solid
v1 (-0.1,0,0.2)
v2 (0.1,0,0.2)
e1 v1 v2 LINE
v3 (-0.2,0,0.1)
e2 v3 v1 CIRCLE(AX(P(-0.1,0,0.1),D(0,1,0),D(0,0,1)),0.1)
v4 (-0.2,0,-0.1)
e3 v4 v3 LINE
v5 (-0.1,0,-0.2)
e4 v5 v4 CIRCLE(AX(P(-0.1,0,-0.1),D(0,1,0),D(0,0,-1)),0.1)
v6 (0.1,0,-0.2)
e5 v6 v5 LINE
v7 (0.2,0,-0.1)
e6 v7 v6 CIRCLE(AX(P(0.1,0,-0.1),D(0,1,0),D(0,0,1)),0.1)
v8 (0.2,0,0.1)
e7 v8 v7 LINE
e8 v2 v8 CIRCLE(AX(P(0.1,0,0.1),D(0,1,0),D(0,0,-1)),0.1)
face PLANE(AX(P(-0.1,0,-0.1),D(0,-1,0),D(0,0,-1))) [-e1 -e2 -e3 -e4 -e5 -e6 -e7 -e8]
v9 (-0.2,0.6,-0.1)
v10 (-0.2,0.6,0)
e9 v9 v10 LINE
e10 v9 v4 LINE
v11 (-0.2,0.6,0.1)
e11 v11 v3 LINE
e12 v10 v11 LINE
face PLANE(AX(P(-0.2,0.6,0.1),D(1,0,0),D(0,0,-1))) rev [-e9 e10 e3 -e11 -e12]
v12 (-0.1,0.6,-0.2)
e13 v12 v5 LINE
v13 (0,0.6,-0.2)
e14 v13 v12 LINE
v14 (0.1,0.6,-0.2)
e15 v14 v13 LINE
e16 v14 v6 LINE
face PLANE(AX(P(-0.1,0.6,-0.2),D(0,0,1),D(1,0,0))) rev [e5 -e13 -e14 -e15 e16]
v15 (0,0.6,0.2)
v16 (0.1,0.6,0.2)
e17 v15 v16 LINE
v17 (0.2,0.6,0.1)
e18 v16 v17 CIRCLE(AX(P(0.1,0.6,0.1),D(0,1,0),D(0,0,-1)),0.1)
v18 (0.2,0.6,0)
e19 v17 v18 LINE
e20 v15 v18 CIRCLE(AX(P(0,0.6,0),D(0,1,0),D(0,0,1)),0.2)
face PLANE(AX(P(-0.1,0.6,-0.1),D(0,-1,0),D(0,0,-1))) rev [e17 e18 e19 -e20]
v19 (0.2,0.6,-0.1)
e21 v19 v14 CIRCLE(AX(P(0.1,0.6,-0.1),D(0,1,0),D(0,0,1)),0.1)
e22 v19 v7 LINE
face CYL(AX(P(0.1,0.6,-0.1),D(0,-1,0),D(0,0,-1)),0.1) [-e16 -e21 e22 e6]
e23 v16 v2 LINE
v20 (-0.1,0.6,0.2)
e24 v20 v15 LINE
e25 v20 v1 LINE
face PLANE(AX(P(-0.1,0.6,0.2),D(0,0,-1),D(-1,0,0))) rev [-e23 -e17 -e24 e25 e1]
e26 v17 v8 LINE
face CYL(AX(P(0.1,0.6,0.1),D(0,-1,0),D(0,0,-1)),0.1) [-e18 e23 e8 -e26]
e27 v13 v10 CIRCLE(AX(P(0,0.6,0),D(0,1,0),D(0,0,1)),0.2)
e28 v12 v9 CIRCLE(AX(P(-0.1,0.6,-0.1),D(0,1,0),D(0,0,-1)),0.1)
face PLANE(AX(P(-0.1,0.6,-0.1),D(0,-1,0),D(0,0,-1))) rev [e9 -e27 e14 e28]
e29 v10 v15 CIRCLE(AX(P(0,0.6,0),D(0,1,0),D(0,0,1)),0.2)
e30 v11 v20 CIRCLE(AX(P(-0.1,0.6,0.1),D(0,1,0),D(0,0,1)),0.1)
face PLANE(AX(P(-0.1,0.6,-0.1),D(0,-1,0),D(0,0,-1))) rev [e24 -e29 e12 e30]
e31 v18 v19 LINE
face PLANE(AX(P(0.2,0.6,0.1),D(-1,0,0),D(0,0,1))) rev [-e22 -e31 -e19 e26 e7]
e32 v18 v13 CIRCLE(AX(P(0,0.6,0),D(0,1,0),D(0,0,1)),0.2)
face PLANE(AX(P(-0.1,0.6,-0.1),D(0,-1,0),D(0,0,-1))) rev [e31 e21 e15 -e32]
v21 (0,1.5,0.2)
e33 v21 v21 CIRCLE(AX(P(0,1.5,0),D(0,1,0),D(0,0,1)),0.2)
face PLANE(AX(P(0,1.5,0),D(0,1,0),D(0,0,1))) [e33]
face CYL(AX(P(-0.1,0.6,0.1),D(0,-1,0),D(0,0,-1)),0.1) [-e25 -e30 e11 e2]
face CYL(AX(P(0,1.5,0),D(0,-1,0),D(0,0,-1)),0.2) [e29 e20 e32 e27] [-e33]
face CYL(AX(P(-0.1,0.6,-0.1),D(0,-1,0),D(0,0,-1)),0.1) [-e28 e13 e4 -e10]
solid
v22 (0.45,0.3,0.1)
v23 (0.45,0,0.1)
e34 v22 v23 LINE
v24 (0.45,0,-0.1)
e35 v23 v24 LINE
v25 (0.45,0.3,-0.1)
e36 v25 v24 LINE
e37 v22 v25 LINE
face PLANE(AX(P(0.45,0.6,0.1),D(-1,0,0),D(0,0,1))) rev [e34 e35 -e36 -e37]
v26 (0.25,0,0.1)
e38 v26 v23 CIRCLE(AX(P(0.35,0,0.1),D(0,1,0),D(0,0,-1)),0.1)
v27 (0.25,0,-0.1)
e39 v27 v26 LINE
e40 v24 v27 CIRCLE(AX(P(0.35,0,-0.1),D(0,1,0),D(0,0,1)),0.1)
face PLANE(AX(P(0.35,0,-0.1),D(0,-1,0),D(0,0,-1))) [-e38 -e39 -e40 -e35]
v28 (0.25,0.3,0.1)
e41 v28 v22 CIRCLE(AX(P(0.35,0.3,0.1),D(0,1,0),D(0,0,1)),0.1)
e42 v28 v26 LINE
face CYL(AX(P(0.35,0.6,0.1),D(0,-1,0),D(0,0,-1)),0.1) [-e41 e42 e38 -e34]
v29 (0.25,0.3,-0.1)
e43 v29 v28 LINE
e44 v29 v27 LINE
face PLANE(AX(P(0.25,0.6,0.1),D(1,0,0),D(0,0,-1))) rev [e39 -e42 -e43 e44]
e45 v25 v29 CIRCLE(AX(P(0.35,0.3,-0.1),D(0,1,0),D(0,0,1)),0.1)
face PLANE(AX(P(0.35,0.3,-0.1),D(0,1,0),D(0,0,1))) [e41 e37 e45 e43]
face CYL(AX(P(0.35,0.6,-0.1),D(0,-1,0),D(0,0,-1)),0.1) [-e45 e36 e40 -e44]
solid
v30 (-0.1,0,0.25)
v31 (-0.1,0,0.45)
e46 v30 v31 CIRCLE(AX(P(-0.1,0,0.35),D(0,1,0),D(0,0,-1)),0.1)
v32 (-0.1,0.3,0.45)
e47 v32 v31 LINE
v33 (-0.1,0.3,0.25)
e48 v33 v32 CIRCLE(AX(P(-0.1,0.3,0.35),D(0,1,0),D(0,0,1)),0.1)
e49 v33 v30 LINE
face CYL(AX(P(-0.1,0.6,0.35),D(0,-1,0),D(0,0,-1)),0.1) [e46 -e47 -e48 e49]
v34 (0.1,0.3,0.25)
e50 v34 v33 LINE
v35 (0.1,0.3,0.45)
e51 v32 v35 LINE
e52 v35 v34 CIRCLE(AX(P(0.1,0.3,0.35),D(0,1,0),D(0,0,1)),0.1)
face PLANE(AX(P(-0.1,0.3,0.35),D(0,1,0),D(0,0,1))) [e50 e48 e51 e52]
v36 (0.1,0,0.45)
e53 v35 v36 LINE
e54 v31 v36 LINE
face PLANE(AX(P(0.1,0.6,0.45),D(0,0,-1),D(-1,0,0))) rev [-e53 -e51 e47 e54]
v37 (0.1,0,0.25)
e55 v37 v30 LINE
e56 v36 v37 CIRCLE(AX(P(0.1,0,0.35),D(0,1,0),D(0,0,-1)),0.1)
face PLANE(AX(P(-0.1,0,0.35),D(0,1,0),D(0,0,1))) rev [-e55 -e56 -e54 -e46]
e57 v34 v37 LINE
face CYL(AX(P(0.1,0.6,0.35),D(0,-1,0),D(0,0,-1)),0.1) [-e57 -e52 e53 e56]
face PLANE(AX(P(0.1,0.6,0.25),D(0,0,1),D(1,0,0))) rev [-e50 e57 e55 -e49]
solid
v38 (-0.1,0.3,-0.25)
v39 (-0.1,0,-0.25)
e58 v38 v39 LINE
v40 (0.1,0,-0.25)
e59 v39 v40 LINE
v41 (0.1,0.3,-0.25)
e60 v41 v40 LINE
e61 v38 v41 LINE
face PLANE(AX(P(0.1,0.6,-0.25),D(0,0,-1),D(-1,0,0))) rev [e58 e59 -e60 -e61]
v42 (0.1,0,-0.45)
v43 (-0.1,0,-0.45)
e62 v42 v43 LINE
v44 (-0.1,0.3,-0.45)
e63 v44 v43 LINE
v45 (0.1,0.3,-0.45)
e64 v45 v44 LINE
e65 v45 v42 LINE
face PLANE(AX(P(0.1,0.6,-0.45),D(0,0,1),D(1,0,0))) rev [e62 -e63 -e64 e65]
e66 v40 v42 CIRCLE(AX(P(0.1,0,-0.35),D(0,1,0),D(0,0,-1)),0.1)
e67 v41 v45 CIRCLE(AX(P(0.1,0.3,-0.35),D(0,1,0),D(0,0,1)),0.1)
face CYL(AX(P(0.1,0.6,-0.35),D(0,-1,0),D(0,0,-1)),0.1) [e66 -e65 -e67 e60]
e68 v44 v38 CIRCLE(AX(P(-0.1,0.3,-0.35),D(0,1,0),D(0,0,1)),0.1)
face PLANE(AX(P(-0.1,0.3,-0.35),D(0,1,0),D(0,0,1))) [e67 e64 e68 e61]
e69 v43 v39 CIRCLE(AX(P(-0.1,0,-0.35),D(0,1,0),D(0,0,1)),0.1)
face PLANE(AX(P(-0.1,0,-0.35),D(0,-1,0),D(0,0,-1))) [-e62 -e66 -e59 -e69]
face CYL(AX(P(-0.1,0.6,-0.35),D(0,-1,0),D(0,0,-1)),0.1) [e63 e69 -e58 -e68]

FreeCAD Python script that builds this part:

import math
import FreeCAD as App
import Part
import Sketcher

doc = App.newDocument("Part")
body = doc.addObject("PartDesign::Body", "Body")

# Sketch on XZ plane
sketch1 = body.newObject("Sketcher::SketchObject", "Sketch")
sketch1.AttachmentSupport = (doc.getObject("XZ_Plane"), [""])
sketch1.MapMode = "FlatFace"
sketch1.addGeometry([
    Part.LineSegment(App.Vector(-0.1, 0.2, 0), App.Vector(0.1, 0.2, 0)),  # 0
    Part.ArcOfCircle(Part.Circle(App.Vector(0.1, 0.1, 0), App.Vector(0, 0, 1), 0.1), math.radians(0), math.radians(90)),  # 1
    Part.LineSegment(App.Vector(0.2, 0.1, 0), App.Vector(0.2, -0.1, 0)),  # 2
    Part.ArcOfCircle(Part.Circle(App.Vector(0.1, -0.1, 0), App.Vector(0, 0, 1), 0.1), math.radians(-90), math.radians(0)),  # 3
    Part.LineSegment(App.Vector(0.1, -0.2, 0), App.Vector(-0.1, -0.2, 0)),  # 4
    Part.ArcOfCircle(Part.Circle(App.Vector(-0.1, -0.1, 0), App.Vector(0, 0, 1), 0.1), math.radians(180), math.radians(270)),  # 5
    Part.LineSegment(App.Vector(-0.2, -0.1, 0), App.Vector(-0.2, 0.1, 0)),  # 6
    Part.ArcOfCircle(Part.Circle(App.Vector(-0.1, 0.1, 0), App.Vector(0, 0, 1), 0.1), math.radians(90), math.radians(180)),  # 7
], False)
sketch1.addConstraint([
    Sketcher.Constraint("Tangent", 0, 2, 1, 2),
    Sketcher.Constraint("Tangent", 1, 1, 2, 1),
    Sketcher.Constraint("Tangent", 2, 2, 3, 2),
    Sketcher.Constraint("Tangent", 3, 1, 4, 1),
    Sketcher.Constraint("Tangent", 4, 2, 5, 2),
    Sketcher.Constraint("Tangent", 5, 1, 6, 1),
    Sketcher.Constraint("Tangent", 6, 2, 7, 2),
    Sketcher.Constraint("Tangent", 7, 1, 0, 1),
    Sketcher.Constraint("Horizontal", 0),
    Sketcher.Constraint("Vertical", 2),
    Sketcher.Constraint("Horizontal", 4),
    Sketcher.Constraint("Vertical", 6),
    Sketcher.Constraint("Equal", 1, 3),
    Sketcher.Constraint("Equal", 3, 5),
    Sketcher.Constraint("Equal", 5, 7),
    Sketcher.Constraint("Symmetric", 1, 3, 5, 3, -1, 1),
    Sketcher.Constraint("Equal", 4, 2),
    Sketcher.Constraint("Radius", 1, 0.1),
    Sketcher.Constraint("DistanceX", 0, 1, 0, 2, 0.2),
])
pad1 = body.newObject("PartDesign::Pad", "Pad")
pad1.Profile = sketch1
pad1.Length = 0.6
pad1.Reversed = True

# Sketch on XZ plane
sketch2 = body.newObject("Sketcher::SketchObject", "Sketch001")
sketch2.AttachmentSupport = (doc.getObject("XZ_Plane"), [""])
sketch2.MapMode = "FlatFace"
sketch2.AttachmentOffset = App.Placement(App.Vector(0, 0, -0.6), App.Rotation())
sketch2.addGeometry(Part.Circle(App.Vector(0, 0, 0), App.Vector(0, 0, 1), 0.2), False)
sketch2.addConstraint([
    Sketcher.Constraint("Coincident", 0, 3, -1, 1),
    Sketcher.Constraint("Diameter", 0, 0.4),
])
pad2 = body.newObject("PartDesign::Pad", "Pad001")
pad2.Profile = sketch2
pad2.Length = 0.9
pad2.Reversed = True
body2 = doc.addObject("PartDesign::Body", "Body001")

# Sketch on XZ plane
sketch3 = body2.newObject("Sketcher::SketchObject", "Sketch002")
sketch3.AttachmentSupport = (doc.getObject("XZ_Plane001"), [""])
sketch3.MapMode = "FlatFace"
sketch3.addGeometry([
    Part.LineSegment(App.Vector(0.45, 0.1, 0), App.Vector(0.45, -0.1, 0)),  # 0
    Part.ArcOfCircle(Part.Circle(App.Vector(0.35, -0.1, 0), App.Vector(0, 0, 1), 0.1), math.radians(-90), math.radians(0)),  # 1
    Part.ArcOfCircle(Part.Circle(App.Vector(0.35, -0.1, 0), App.Vector(0, 0, 1), 0.1), math.radians(180), math.radians(270)),  # 2
    Part.LineSegment(App.Vector(0.25, -0.1, 0), App.Vector(0.25, 0.1, 0)),  # 3
    Part.ArcOfCircle(Part.Circle(App.Vector(0.35, 0.1, 0), App.Vector(0, 0, 1), 0.1), math.radians(90), math.radians(180)),  # 4
    Part.ArcOfCircle(Part.Circle(App.Vector(0.35, 0.1, 0), App.Vector(0, 0, 1), 0.1), math.radians(0), math.radians(90)),  # 5
], False)
sketch3.addConstraint([
    Sketcher.Constraint("Tangent", 0, 2, 1, 2),
    Sketcher.Constraint("Tangent", 1, 1, 2, 2),
    Sketcher.Constraint("Tangent", 2, 1, 3, 1),
    Sketcher.Constraint("Tangent", 3, 2, 4, 2),
    Sketcher.Constraint("Tangent", 4, 1, 5, 2),
    Sketcher.Constraint("Tangent", 5, 1, 0, 1),
    Sketcher.Constraint("Vertical", 0),
    Sketcher.Constraint("Vertical", 3),
    Sketcher.Constraint("Equal", 1, 2),
    Sketcher.Constraint("Equal", 2, 4),
    Sketcher.Constraint("Symmetric", 1, 1, 4, 1, -1),
    Sketcher.Constraint("Vertical", 5, 3, 1, 1),
    Sketcher.Constraint("Radius", 1, 0.1),
    Sketcher.Constraint("DistanceY", 0, 2, 0, 1, 0.2),
    Sketcher.Constraint("DistanceX", -1, 1, 1, 3, 0.35),
])
pad3 = body2.newObject("PartDesign::Pad", "Pad002")
pad3.Profile = sketch3
pad3.Length = 0.6
pad3.Reversed = True
body3 = doc.addObject("PartDesign::Body", "Body002")

# Sketch on XZ plane
sketch4 = body3.newObject("Sketcher::SketchObject", "Sketch003")
sketch4.AttachmentSupport = (doc.getObject("XZ_Plane002"), [""])
sketch4.MapMode = "FlatFace"
sketch4.addGeometry([
    Part.LineSegment(App.Vector(-0.1, -0.25, 0), App.Vector(0.1, -0.25, 0)),  # 0
    Part.ArcOfCircle(Part.Circle(App.Vector(0.1, -0.35, 0), App.Vector(0, 0, 1), 0.1), math.radians(0), math.radians(90)),  # 1
    Part.ArcOfCircle(Part.Circle(App.Vector(0.1, -0.35, 0), App.Vector(0, 0, 1), 0.1), math.radians(-90), math.radians(0)),  # 2
    Part.LineSegment(App.Vector(0.1, -0.45, 0), App.Vector(-0.1, -0.45, 0)),  # 3
    Part.ArcOfCircle(Part.Circle(App.Vector(-0.1, -0.35, 0), App.Vector(0, 0, 1), 0.1), math.radians(180), math.radians(270)),  # 4
    Part.ArcOfCircle(Part.Circle(App.Vector(-0.1, -0.35, 0), App.Vector(0, 0, 1), 0.1), math.radians(90), math.radians(180)),  # 5
], False)
sketch4.addConstraint([
    Sketcher.Constraint("Tangent", 0, 2, 1, 2),
    Sketcher.Constraint("Tangent", 1, 1, 2, 2),
    Sketcher.Constraint("Tangent", 2, 1, 3, 1),
    Sketcher.Constraint("Tangent", 3, 2, 4, 2),
    Sketcher.Constraint("Tangent", 4, 1, 5, 2),
    Sketcher.Constraint("Tangent", 5, 1, 0, 1),
    Sketcher.Constraint("Horizontal", 0),
    Sketcher.Constraint("Horizontal", 3),
    Sketcher.Constraint("Equal", 1, 2),
    Sketcher.Constraint("Equal", 2, 4),
    Sketcher.Constraint("Symmetric", 1, 1, 4, 1, -2),
    Sketcher.Constraint("Horizontal", 5, 3, 1, 1),
    Sketcher.Constraint("Radius", 1, 0.1),
    Sketcher.Constraint("DistanceX", 0, 1, 0, 2, 0.2),
    Sketcher.Constraint("DistanceY", 1, 3, -1, 1, 0.35),
])
pad4 = body3.newObject("PartDesign::Pad", "Pad003")
pad4.Profile = sketch4
pad4.Length = 0.6
pad4.Reversed = True
body4 = doc.addObject("PartDesign::Body", "Body003")

# Sketch on XZ plane
sketch5 = body4.newObject("Sketcher::SketchObject", "Sketch004")
sketch5.AttachmentSupport = (doc.getObject("XZ_Plane003"), [""])
sketch5.MapMode = "FlatFace"
sketch5.addGeometry([
    Part.LineSegment(App.Vector(-0.1, 0.45, 0), App.Vector(0.1, 0.45, 0)),  # 0
    Part.ArcOfCircle(Part.Circle(App.Vector(0.1, 0.35, 0), App.Vector(0, 0, 1), 0.1), math.radians(0), math.radians(90)),  # 1
    Part.ArcOfCircle(Part.Circle(App.Vector(0.1, 0.35, 0), App.Vector(0, 0, 1), 0.1), math.radians(-90), math.radians(0)),  # 2
    Part.LineSegment(App.Vector(0.1, 0.25, 0), App.Vector(-0.1, 0.25, 0)),  # 3
    Part.ArcOfCircle(Part.Circle(App.Vector(-0.1, 0.35, 0), App.Vector(0, 0, 1), 0.1), math.radians(180), math.radians(270)),  # 4
    Part.ArcOfCircle(Part.Circle(App.Vector(-0.1, 0.35, 0), App.Vector(0, 0, 1), 0.1), math.radians(90), math.radians(180)),  # 5
], False)
sketch5.addConstraint([
    Sketcher.Constraint("Tangent", 0, 2, 1, 2),
    Sketcher.Constraint("Tangent", 1, 1, 2, 2),
    Sketcher.Constraint("Tangent", 2, 1, 3, 1),
    Sketcher.Constraint("Tangent", 3, 2, 4, 2),
    Sketcher.Constraint("Tangent", 4, 1, 5, 2),
    Sketcher.Constraint("Tangent", 5, 1, 0, 1),
    Sketcher.Constraint("Horizontal", 0),
    Sketcher.Constraint("Horizontal", 3),
    Sketcher.Constraint("Equal", 1, 2),
    Sketcher.Constraint("Equal", 2, 4),
    Sketcher.Constraint("Symmetric", 1, 1, 4, 1, -2),
    Sketcher.Constraint("Horizontal", 5, 3, 1, 1),
    Sketcher.Constraint("Radius", 1, 0.1),
    Sketcher.Constraint("DistanceX", 0, 1, 0, 2, 0.2),
    Sketcher.Constraint("DistanceY", -1, 1, 1, 3, 0.35),
])
pad5 = body4.newObject("PartDesign::Pad", "Pad004")
pad5.Profile = sketch5
pad5.Length = 0.6
pad5.Reversed = True
body5 = doc.addObject("PartDesign::Body", "Body004")
body5.AllowCompound = True

# Sketch on XZ plane
sketch6 = body5.newObject("Sketcher::SketchObject", "Sketch005")
sketch6.AttachmentSupport = (doc.getObject("XZ_Plane004"), [""])
sketch6.MapMode = "FlatFace"
sketch6.AttachmentOffset = App.Placement(App.Vector(0, 0, -0.6), App.Rotation())
sketch6.addGeometry([
    Part.LineSegment(App.Vector(-0.1, 0.45, 0), App.Vector(0.1, 0.45, 0)),  # 0
    Part.ArcOfCircle(Part.Circle(App.Vector(0.1, 0.35, 0), App.Vector(0, 0, 1), 0.1), math.radians(-90), math.radians(90)),  # 1
    Part.LineSegment(App.Vector(0.1, 0.25, 0), App.Vector(-0.1, 0.25, 0)),  # 2
    Part.ArcOfCircle(Part.Circle(App.Vector(-0.1, 0.35, 0), App.Vector(0, 0, 1), 0.1), math.radians(90), math.radians(270)),  # 3
    Part.LineSegment(App.Vector(0.25, -0.1, 0), App.Vector(0.25, 0.1, 0)),  # 4
    Part.ArcOfCircle(Part.Circle(App.Vector(0.35, 0.1, 0), App.Vector(0, 0, 1), 0.1), math.radians(0), math.radians(180)),  # 5
    Part.LineSegment(App.Vector(0.45, 0.1, 0), App.Vector(0.45, -0.1, 0)),  # 6
    Part.ArcOfCircle(Part.Circle(App.Vector(0.35, -0.1, 0), App.Vector(0, 0, 1), 0.1), math.radians(180), math.radians(360)),  # 7
    Part.LineSegment(App.Vector(-0.1, -0.25, 0), App.Vector(0.1, -0.25, 0)),  # 8
    Part.ArcOfCircle(Part.Circle(App.Vector(0.1, -0.35, 0), App.Vector(0, 0, 1), 0.1), math.radians(-90), math.radians(90)),  # 9
    Part.LineSegment(App.Vector(0.1, -0.45, 0), App.Vector(-0.1, -0.45, 0)),  # 10
    Part.ArcOfCircle(Part.Circle(App.Vector(-0.1, -0.35, 0), App.Vector(0, 0, 1), 0.1), math.radians(90), math.radians(270)),  # 11
], False)
sketch6.addConstraint([
    Sketcher.Constraint("Tangent", 0, 2, 1, 2),
    Sketcher.Constraint("Tangent", 1, 1, 2, 1),
    Sketcher.Constraint("Tangent", 2, 2, 3, 2),
    Sketcher.Constraint("Tangent", 3, 1, 0, 1),
    Sketcher.Constraint("Tangent", 4, 2, 5, 2),
    Sketcher.Constraint("Tangent", 5, 1, 6, 1),
    Sketcher.Constraint("Tangent", 6, 2, 7, 2),
    Sketcher.Constraint("Tangent", 7, 1, 4, 1),
    Sketcher.Constraint("Tangent", 8, 2, 9, 2),
    Sketcher.Constraint("Tangent", 9, 1, 10, 1),
    Sketcher.Constraint("Tangent", 10, 2, 11, 2),
    Sketcher.Constraint("Tangent", 11, 1, 8, 1),
    Sketcher.Constraint("Horizontal", 0),
    Sketcher.Constraint("Horizontal", 2),
    Sketcher.Constraint("Vertical", 4),
    Sketcher.Constraint("Vertical", 6),
    Sketcher.Constraint("Horizontal", 8),
    Sketcher.Constraint("Horizontal", 10),
    Sketcher.Constraint("Equal", 3, 5),
    Sketcher.Constraint("Equal", 7, 9),
    Sketcher.Constraint("Symmetric", 3, 3, 9, 3, -1, 1),
    Sketcher.Constraint("Vertical", 1, 3, 9, 3),
    Sketcher.Constraint("Vertical", 3, 3, 11, 3),
    Sketcher.Constraint("Equal", 10, 4),
    Sketcher.Constraint("Radius", 1, 0.1),
    Sketcher.Constraint("DistanceX", 0, 1, 0, 2, 0.2),
    Sketcher.Constraint("DistanceY", -1, 1, 5, 3, 0.1),
    Sketcher.Constraint("DistanceY", 9, 3, 1, 3, 0.7),
    Sketcher.Constraint("DistanceX", -1, 1, 5, 3, 0.35),
])
pad6 = body5.newObject("PartDesign::Pad", "Pad005")
pad6.Profile = sketch6
pad6.Length = 0.3
doc.recompute()

body6 = doc.addObject("PartDesign::Body", "Body005")
body6.BaseFeature = body5
boolean = body2.newObject("PartDesign::Boolean", "Boolean")
boolean.Type = "Cut"
boolean.addObjects([body6])
doc.recompute()

body7 = doc.addObject("PartDesign::Body", "Body006")
body7.BaseFeature = body5
boolean2 = body3.newObject("PartDesign::Boolean", "Boolean001")
boolean2.Type = "Cut"
boolean2.addObjects([body7])
doc.recompute()

boolean3 = body4.newObject("PartDesign::Boolean", "Boolean002")
boolean3.Type = "Cut"
boolean3.addObjects([body5])

doc.recompute()
